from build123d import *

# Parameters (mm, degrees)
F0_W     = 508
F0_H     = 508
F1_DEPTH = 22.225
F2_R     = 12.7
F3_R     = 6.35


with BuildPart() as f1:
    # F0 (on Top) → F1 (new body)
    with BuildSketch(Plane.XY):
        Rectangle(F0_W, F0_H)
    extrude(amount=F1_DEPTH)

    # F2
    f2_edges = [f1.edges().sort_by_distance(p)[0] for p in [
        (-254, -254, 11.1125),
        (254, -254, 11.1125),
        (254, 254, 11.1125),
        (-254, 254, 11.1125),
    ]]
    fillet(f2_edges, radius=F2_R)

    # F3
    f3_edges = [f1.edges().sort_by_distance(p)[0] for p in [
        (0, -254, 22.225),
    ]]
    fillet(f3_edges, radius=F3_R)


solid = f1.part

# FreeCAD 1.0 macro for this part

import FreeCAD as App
import Part
import Sketcher
Q = App.Units.Quantity


def edges_at(feature, points):
    """Names of the edges that pass closest to the given points."""
    edges = feature.Shape.Edges
    near = lambda p: min(range(len(edges)), key=lambda i: edges[i].distToShape(Part.Vertex(*p))[0])
    return sorted({f"Edge{near(p) + 1}" for p in points})

doc = App.newDocument("Part")
body = doc.addObject("PartDesign::Body", "Body")

sketch1 = body.newObject("Sketcher::SketchObject", "Sketch")
sketch1.AttachmentSupport = (doc.getObject("XY_Plane"), [""])
sketch1.MapMode = "FlatFace"
sketch1.addGeometry([
    Part.LineSegment(App.Vector(-254, 254, 0), App.Vector(-254, -254, 0)),
    Part.LineSegment(App.Vector(-254, -254, 0), App.Vector(254, -254, 0)),
    Part.LineSegment(App.Vector(254, -254, 0), App.Vector(254, 254, 0)),
    Part.LineSegment(App.Vector(254, 254, 0), App.Vector(-254, 254, 0)),
], False)
sketch1.addConstraint([
    Sketcher.Constraint("Coincident", 0, 2, 1, 1),
    Sketcher.Constraint("Coincident", 1, 2, 2, 1),
    Sketcher.Constraint("Coincident", 2, 2, 3, 1),
    Sketcher.Constraint("Coincident", 3, 2, 0, 1),
    Sketcher.Constraint("Vertical", 0),
    Sketcher.Constraint("Horizontal", 1),
    Sketcher.Constraint("Vertical", 2),
    Sketcher.Constraint("Horizontal", 3),
    Sketcher.Constraint("Symmetric", 0, 2, 2, 2, -1, 1),
    Sketcher.Constraint("Equal", 3, 0),
    Sketcher.Constraint("DistanceX", 1, 1, 1, 2, Q("20 in")),
])
pad1 = body.newObject("PartDesign::Pad", "Pad")
pad1.Profile = sketch1
pad1.Length = Q("0.875 in")
doc.recompute()

fillet = body.newObject("PartDesign::Fillet", "Fillet")
fillet.Base = (pad1, edges_at(pad1, [
    (-254, -254, 11.113),
    (254, -254, 11.113),
    (254, 254, 11.113),
    (-254, 254, 11.113),
]))
fillet.Radius = Q("0.5 in")
doc.recompute()

fillet2 = body.newObject("PartDesign::Fillet", "Fillet001")
fillet2.Base = (fillet, edges_at(fillet, [(0, -254, 22.225)]))
fillet2.Radius = Q("0.25 in")

doc.recompute()
